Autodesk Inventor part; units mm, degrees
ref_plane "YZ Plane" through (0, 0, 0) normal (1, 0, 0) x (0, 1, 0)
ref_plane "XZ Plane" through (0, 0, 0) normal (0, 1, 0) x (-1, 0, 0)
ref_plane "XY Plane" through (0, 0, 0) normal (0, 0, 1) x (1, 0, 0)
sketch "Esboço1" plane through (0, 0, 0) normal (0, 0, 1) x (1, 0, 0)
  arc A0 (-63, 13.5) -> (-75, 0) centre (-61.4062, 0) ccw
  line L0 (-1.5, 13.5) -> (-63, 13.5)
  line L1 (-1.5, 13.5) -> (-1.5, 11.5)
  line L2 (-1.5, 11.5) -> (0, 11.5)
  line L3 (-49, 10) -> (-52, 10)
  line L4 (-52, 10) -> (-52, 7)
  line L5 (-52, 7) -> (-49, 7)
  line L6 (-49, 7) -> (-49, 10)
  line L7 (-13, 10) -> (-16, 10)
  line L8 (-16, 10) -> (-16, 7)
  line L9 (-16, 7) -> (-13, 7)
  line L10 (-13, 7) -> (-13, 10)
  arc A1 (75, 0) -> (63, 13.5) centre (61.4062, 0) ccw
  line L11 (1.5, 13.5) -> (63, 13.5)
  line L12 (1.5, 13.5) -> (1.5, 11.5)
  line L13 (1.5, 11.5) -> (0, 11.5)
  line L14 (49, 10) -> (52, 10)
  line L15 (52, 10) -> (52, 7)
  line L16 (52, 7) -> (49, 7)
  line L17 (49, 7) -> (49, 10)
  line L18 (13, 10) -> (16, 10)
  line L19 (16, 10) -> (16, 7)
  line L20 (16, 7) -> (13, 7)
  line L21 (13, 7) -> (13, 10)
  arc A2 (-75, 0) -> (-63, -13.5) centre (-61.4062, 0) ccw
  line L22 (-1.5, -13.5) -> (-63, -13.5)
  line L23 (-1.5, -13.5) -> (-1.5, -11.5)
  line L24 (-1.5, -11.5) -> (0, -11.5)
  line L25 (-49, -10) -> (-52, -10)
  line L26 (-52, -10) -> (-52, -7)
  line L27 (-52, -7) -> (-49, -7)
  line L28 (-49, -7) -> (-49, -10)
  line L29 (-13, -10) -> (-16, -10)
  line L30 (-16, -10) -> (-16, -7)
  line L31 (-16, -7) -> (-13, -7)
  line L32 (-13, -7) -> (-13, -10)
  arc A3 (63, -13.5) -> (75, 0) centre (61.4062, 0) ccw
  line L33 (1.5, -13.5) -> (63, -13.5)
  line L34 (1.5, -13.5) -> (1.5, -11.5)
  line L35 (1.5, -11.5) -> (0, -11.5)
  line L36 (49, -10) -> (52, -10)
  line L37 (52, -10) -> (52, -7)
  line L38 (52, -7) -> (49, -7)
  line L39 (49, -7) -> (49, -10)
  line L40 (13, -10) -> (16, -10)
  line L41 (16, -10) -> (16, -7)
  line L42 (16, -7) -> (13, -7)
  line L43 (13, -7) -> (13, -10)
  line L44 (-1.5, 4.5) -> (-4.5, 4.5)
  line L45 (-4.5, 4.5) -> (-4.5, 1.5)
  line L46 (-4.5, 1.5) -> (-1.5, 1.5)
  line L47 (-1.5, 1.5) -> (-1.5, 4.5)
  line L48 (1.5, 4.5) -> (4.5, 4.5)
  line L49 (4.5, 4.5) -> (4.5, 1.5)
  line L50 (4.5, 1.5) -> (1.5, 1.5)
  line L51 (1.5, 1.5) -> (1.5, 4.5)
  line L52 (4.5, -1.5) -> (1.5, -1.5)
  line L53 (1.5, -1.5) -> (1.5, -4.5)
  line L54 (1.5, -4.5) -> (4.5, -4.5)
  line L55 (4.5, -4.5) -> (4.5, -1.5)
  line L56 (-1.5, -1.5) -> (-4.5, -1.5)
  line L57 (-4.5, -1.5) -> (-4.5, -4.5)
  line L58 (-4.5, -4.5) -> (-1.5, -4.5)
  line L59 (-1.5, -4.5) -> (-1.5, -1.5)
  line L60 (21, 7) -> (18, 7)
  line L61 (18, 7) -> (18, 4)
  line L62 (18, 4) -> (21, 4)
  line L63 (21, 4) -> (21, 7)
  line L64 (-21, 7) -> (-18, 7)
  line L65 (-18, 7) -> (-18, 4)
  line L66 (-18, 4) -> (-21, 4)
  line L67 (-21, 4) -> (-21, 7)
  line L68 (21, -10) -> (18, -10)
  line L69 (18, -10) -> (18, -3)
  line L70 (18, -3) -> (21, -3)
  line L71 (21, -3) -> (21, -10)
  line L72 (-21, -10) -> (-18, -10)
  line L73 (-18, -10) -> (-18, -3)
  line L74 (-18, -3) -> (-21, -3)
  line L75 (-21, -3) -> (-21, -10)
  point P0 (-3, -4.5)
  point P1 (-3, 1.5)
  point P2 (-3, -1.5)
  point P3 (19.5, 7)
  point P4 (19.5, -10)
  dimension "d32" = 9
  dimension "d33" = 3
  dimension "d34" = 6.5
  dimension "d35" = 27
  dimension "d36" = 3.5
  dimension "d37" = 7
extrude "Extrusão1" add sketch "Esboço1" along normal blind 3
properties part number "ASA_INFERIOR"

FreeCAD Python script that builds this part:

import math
import FreeCAD as App
import Part
import Sketcher

V = App.Vector
Q = App.Units.Quantity

doc = App.newDocument("Part")
params = doc.addObject("Spreadsheet::Sheet", "Params")
for row, (alias, value) in enumerate([
    ("sketch1_width", "3 mm"),
    ("sketch1_height", "7 mm"),
    ("sketch1_height2", "2 mm"),
    ("sketch1_width2", "61.5 mm"),
    ("pad1_length", "3 mm"),
], start=1):
    params.set(f"A{row}", alias)
    params.set(f"B{row}", "=" + value)
    params.setAlias(f"B{row}", alias)

body = doc.addObject("PartDesign::Body", "Body")

# Sketch on XY plane
sketch1 = body.newObject("Sketcher::SketchObject", "Sketch")
sketch1.AttachmentSupport = (doc.getObject("XY_Plane"), [""])
sketch1.MapMode = "FlatFace"
sketch1.addGeometry([
    Part.LineSegment(V(-1.5, 13.5, 0), V(-63, 13.5, 0)),  # 0
    Part.ArcOfCircle(Part.Circle(V(-61.4, 0, 0), V(0, 0, 1), 13.6), math.radians(97), math.radians(180)),  # 1
    Part.ArcOfCircle(Part.Circle(V(-61.4, 0, 0), V(0, 0, 1), 13.6), math.radians(180), math.radians(263)),  # 2
    Part.LineSegment(V(-63, -13.5, 0), V(-1.5, -13.5, 0)),  # 3
    Part.LineSegment(V(-1.5, -13.5, 0), V(-1.5, -11.5, 0)),  # 4
    Part.LineSegment(V(-1.5, -11.5, 0), V(1.5, -11.5, 0)),  # 5
    Part.LineSegment(V(1.5, -11.5, 0), V(1.5, -13.5, 0)),  # 6
    Part.LineSegment(V(1.5, -13.5, 0), V(63, -13.5, 0)),  # 7
    Part.ArcOfCircle(Part.Circle(V(61.4, 0, 0), V(0, 0, 1), 13.6), math.radians(-83), math.radians(0)),  # 8
    Part.ArcOfCircle(Part.Circle(V(61.4, 0, 0), V(0, 0, 1), 13.6), math.radians(0), math.radians(83)),  # 9
    Part.LineSegment(V(63, 13.5, 0), V(1.5, 13.5, 0)),  # 10
    Part.LineSegment(V(1.5, 13.5, 0), V(1.5, 11.5, 0)),  # 11
    Part.LineSegment(V(1.5, 11.5, 0), V(-1.5, 11.5, 0)),  # 12
    Part.LineSegment(V(-1.5, 11.5, 0), V(-1.5, 13.5, 0)),  # 13
    Part.LineSegment(V(-49, -7, 0), V(-49, -10, 0)),  # 14
    Part.LineSegment(V(-49, -10, 0), V(-52, -10, 0)),  # 15
    Part.LineSegment(V(-52, -10, 0), V(-52, -7, 0)),  # 16
    Part.LineSegment(V(-52, -7, 0), V(-49, -7, 0)),  # 17
    Part.LineSegment(V(-13, -7, 0), V(-13, -10, 0)),  # 18
    Part.LineSegment(V(-13, -10, 0), V(-16, -10, 0)),  # 19
    Part.LineSegment(V(-16, -10, 0), V(-16, -7, 0)),  # 20
    Part.LineSegment(V(-16, -7, 0), V(-13, -7, 0)),  # 21
    Part.LineSegment(V(-18, -10, 0), V(-21, -10, 0)),  # 22
    Part.LineSegment(V(-21, -10, 0), V(-21, -3, 0)),  # 23
    Part.LineSegment(V(-21, -3, 0), V(-18, -3, 0)),  # 24
    Part.LineSegment(V(-18, -3, 0), V(-18, -10, 0)),  # 25
    Part.LineSegment(V(-4.5, -1.5, 0), V(-1.5, -1.5, 0)),  # 26
    Part.LineSegment(V(-1.5, -1.5, 0), V(-1.5, -4.5, 0)),  # 27
    Part.LineSegment(V(-1.5, -4.5, 0), V(-4.5, -4.5, 0)),  # 28
    Part.LineSegment(V(-4.5, -4.5, 0), V(-4.5, -1.5, 0)),  # 29
    Part.LineSegment(V(16, -10, 0), V(13, -10, 0)),  # 30
    Part.LineSegment(V(13, -10, 0), V(13, -7, 0)),  # 31
    Part.LineSegment(V(13, -7, 0), V(16, -7, 0)),  # 32
    Part.LineSegment(V(16, -7, 0), V(16, -10, 0)),  # 33
    Part.LineSegment(V(52, -10, 0), V(49, -10, 0)),  # 34
    Part.LineSegment(V(49, -10, 0), V(49, -7, 0)),  # 35
    Part.LineSegment(V(49, -7, 0), V(52, -7, 0)),  # 36
    Part.LineSegment(V(52, -7, 0), V(52, -10, 0)),  # 37
    Part.LineSegment(V(21, -3, 0), V(21, -10, 0)),  # 38
    Part.LineSegment(V(21, -10, 0), V(18, -10, 0)),  # 39
    Part.LineSegment(V(18, -10, 0), V(18, -3, 0)),  # 40
    Part.LineSegment(V(18, -3, 0), V(21, -3, 0)),  # 41
    Part.LineSegment(V(1.5, -1.5, 0), V(4.5, -1.5, 0)),  # 42
    Part.LineSegment(V(4.5, -1.5, 0), V(4.5, -4.5, 0)),  # 43
    Part.LineSegment(V(4.5, -4.5, 0), V(1.5, -4.5, 0)),  # 44
    Part.LineSegment(V(1.5, -4.5, 0), V(1.5, -1.5, 0)),  # 45
    Part.LineSegment(V(-4.5, 4.5, 0), V(-1.5, 4.5, 0)),  # 46
    Part.LineSegment(V(-1.5, 4.5, 0), V(-1.5, 1.5, 0)),  # 47
    Part.LineSegment(V(-1.5, 1.5, 0), V(-4.5, 1.5, 0)),  # 48
    Part.LineSegment(V(-4.5, 1.5, 0), V(-4.5, 4.5, 0)),  # 49
    Part.LineSegment(V(-21, 4, 0), V(-21, 7, 0)),  # 50
    Part.LineSegment(V(-21, 7, 0), V(-18, 7, 0)),  # 51
    Part.LineSegment(V(-18, 7, 0), V(-18, 4, 0)),  # 52
    Part.LineSegment(V(-18, 4, 0), V(-21, 4, 0)),  # 53
    Part.LineSegment(V(-52, 10, 0), V(-49, 10, 0)),  # 54
    Part.LineSegment(V(-49, 10, 0), V(-49, 7, 0)),  # 55
    Part.LineSegment(V(-49, 7, 0), V(-52, 7, 0)),  # 56
    Part.LineSegment(V(-52, 7, 0), V(-52, 10, 0)),  # 57
    Part.LineSegment(V(-16, 10, 0), V(-13, 10, 0)),  # 58
    Part.LineSegment(V(-13, 10, 0), V(-13, 7, 0)),  # 59
    Part.LineSegment(V(-13, 7, 0), V(-16, 7, 0)),  # 60
    Part.LineSegment(V(-16, 7, 0), V(-16, 10, 0)),  # 61
    Part.LineSegment(V(1.5, 1.5, 0), V(1.5, 4.5, 0)),  # 62
    Part.LineSegment(V(1.5, 4.5, 0), V(4.5, 4.5, 0)),  # 63
    Part.LineSegment(V(4.5, 4.5, 0), V(4.5, 1.5, 0)),  # 64
    Part.LineSegment(V(4.5, 1.5, 0), V(1.5, 1.5, 0)),  # 65
    Part.LineSegment(V(18, 7, 0), V(21, 7, 0)),  # 66
    Part.LineSegment(V(21, 7, 0), V(21, 4, 0)),  # 67
    Part.LineSegment(V(21, 4, 0), V(18, 4, 0)),  # 68
    Part.LineSegment(V(18, 4, 0), V(18, 7, 0)),  # 69
    Part.LineSegment(V(13, 7, 0), V(13, 10, 0)),  # 70
    Part.LineSegment(V(13, 10, 0), V(16, 10, 0)),  # 71
    Part.LineSegment(V(16, 10, 0), V(16, 7, 0)),  # 72
    Part.LineSegment(V(16, 7, 0), V(13, 7, 0)),  # 73
    Part.LineSegment(V(49, 7, 0), V(49, 10, 0)),  # 74
    Part.LineSegment(V(49, 10, 0), V(52, 10, 0)),  # 75
    Part.LineSegment(V(52, 10, 0), V(52, 7, 0)),  # 76
    Part.LineSegment(V(52, 7, 0), V(49, 7, 0)),  # 77
], False)
sketch1.addConstraint([
    Sketcher.Constraint("Coincident", 0, 2, 1, 1),
    Sketcher.Constraint("Tangent", 1, 2, 2, 1),
    Sketcher.Constraint("Coincident", 2, 2, 3, 1),
    Sketcher.Constraint("Coincident", 3, 2, 4, 1),
    Sketcher.Constraint("Coincident", 4, 2, 5, 1),
    Sketcher.Constraint("Coincident", 5, 2, 6, 1),
    Sketcher.Constraint("Coincident", 6, 2, 7, 1),
    Sketcher.Constraint("Coincident", 7, 2, 8, 1),
    Sketcher.Constraint("Tangent", 8, 2, 9, 1),
    Sketcher.Constraint("Coincident", 9, 2, 10, 1),
    Sketcher.Constraint("Coincident", 10, 2, 11, 1),
    Sketcher.Constraint("Coincident", 11, 2, 12, 1),
    Sketcher.Constraint("Coincident", 12, 2, 13, 1),
    Sketcher.Constraint("Coincident", 13, 2, 0, 1),
    Sketcher.Constraint("Coincident", 14, 2, 15, 1),
    Sketcher.Constraint("Coincident", 15, 2, 16, 1),
    Sketcher.Constraint("Coincident", 16, 2, 17, 1),
    Sketcher.Constraint("Coincident", 17, 2, 14, 1),
    Sketcher.Constraint("Coincident", 18, 2, 19, 1),
    Sketcher.Constraint("Coincident", 19, 2, 20, 1),
    Sketcher.Constraint("Coincident", 20, 2, 21, 1),
    Sketcher.Constraint("Coincident", 21, 2, 18, 1),
    Sketcher.Constraint("Coincident", 22, 2, 23, 1),
    Sketcher.Constraint("Coincident", 23, 2, 24, 1),
    Sketcher.Constraint("Coincident", 24, 2, 25, 1),
    Sketcher.Constraint("Coincident", 25, 2, 22, 1),
    Sketcher.Constraint("Coincident", 26, 2, 27, 1),
    Sketcher.Constraint("Coincident", 27, 2, 28, 1),
    Sketcher.Constraint("Coincident", 28, 2, 29, 1),
    Sketcher.Constraint("Coincident", 29, 2, 26, 1),
    Sketcher.Constraint("Coincident", 30, 2, 31, 1),
    Sketcher.Constraint("Coincident", 31, 2, 32, 1),
    Sketcher.Constraint("Coincident", 32, 2, 33, 1),
    Sketcher.Constraint("Coincident", 33, 2, 30, 1),
    Sketcher.Constraint("Coincident", 34, 2, 35, 1),
    Sketcher.Constraint("Coincident", 35, 2, 36, 1),
    Sketcher.Constraint("Coincident", 36, 2, 37, 1),
    Sketcher.Constraint("Coincident", 37, 2, 34, 1),
    Sketcher.Constraint("Coincident", 38, 2, 39, 1),
    Sketcher.Constraint("Coincident", 39, 2, 40, 1),
    Sketcher.Constraint("Coincident", 40, 2, 41, 1),
    Sketcher.Constraint("Coincident", 41, 2, 38, 1),
    Sketcher.Constraint("Coincident", 42, 2, 43, 1),
    Sketcher.Constraint("Coincident", 43, 2, 44, 1),
    Sketcher.Constraint("Coincident", 44, 2, 45, 1),
    Sketcher.Constraint("Coincident", 45, 2, 42, 1),
    Sketcher.Constraint("Coincident", 46, 2, 47, 1),
    Sketcher.Constraint("Coincident", 47, 2, 48, 1),
    Sketcher.Constraint("Coincident", 48, 2, 49, 1),
    Sketcher.Constraint("Coincident", 49, 2, 46, 1),
    Sketcher.Constraint("Coincident", 50, 2, 51, 1),
    Sketcher.Constraint("Coincident", 51, 2, 52, 1),
    Sketcher.Constraint("Coincident", 52, 2, 53, 1),
    Sketcher.Constraint("Coincident", 53, 2, 50, 1),
    Sketcher.Constraint("Coincident", 54, 2, 55, 1),
    Sketcher.Constraint("Coincident", 55, 2, 56, 1),
    Sketcher.Constraint("Coincident", 56, 2, 57, 1),
    Sketcher.Constraint("Coincident", 57, 2, 54, 1),
    Sketcher.Constraint("Coincident", 58, 2, 59, 1),
    Sketcher.Constraint("Coincident", 59, 2, 60, 1),
    Sketcher.Constraint("Coincident", 60, 2, 61, 1),
    Sketcher.Constraint("Coincident", 61, 2, 58, 1),
    Sketcher.Constraint("Coincident", 62, 2, 63, 1),
    Sketcher.Constraint("Coincident", 63, 2, 64, 1),
    Sketcher.Constraint("Coincident", 64, 2, 65, 1),
    Sketcher.Constraint("Coincident", 65, 2, 62, 1),
    Sketcher.Constraint("Coincident", 66, 2, 67, 1),
    Sketcher.Constraint("Coincident", 67, 2, 68, 1),
    Sketcher.Constraint("Coincident", 68, 2, 69, 1),
    Sketcher.Constraint("Coincident", 69, 2, 66, 1),
    Sketcher.Constraint("Coincident", 70, 2, 71, 1),
    Sketcher.Constraint("Coincident", 71, 2, 72, 1),
    Sketcher.Constraint("Coincident", 72, 2, 73, 1),
    Sketcher.Constraint("Coincident", 73, 2, 70, 1),
    Sketcher.Constraint("Coincident", 74, 2, 75, 1),
    Sketcher.Constraint("Coincident", 75, 2, 76, 1),
    Sketcher.Constraint("Coincident", 76, 2, 77, 1),
    Sketcher.Constraint("Coincident", 77, 2, 74, 1),
    Sketcher.Constraint("Horizontal", 0),
    Sketcher.Constraint("Horizontal", 3),
    Sketcher.Constraint("Vertical", 4),
    Sketcher.Constraint("Horizontal", 5),
    Sketcher.Constraint("Vertical", 6),
    Sketcher.Constraint("Horizontal", 7),
    Sketcher.Constraint("Horizontal", 10),
    Sketcher.Constraint("Vertical", 11),
    Sketcher.Constraint("Horizontal", 12),
    Sketcher.Constraint("Vertical", 13),
    Sketcher.Constraint("Vertical", 14),
    Sketcher.Constraint("Horizontal", 15),
    Sketcher.Constraint("Vertical", 16),
    Sketcher.Constraint("Horizontal", 17),
    Sketcher.Constraint("Vertical", 18),
    Sketcher.Constraint("Horizontal", 19),
    Sketcher.Constraint("Vertical", 20),
    Sketcher.Constraint("Horizontal", 21),
    Sketcher.Constraint("Horizontal", 22),
    Sketcher.Constraint("Vertical", 23),
    Sketcher.Constraint("Horizontal", 24),
    Sketcher.Constraint("Vertical", 25),
    Sketcher.Constraint("Horizontal", 26),
    Sketcher.Constraint("Vertical", 27),
    Sketcher.Constraint("Horizontal", 28),
    Sketcher.Constraint("Vertical", 29),
    Sketcher.Constraint("Horizontal", 30),
    Sketcher.Constraint("Vertical", 31),
    Sketcher.Constraint("Horizontal", 32),
    Sketcher.Constraint("Vertical", 33),
    Sketcher.Constraint("Horizontal", 34),
    Sketcher.Constraint("Vertical", 35),
    Sketcher.Constraint("Horizontal", 36),
    Sketcher.Constraint("Vertical", 37),
    Sketcher.Constraint("Vertical", 38),
    Sketcher.Constraint("Horizontal", 39),
    Sketcher.Constraint("Vertical", 40),
    Sketcher.Constraint("Horizontal", 41),
    Sketcher.Constraint("Horizontal", 42),
    Sketcher.Constraint("Vertical", 43),
    Sketcher.Constraint("Horizontal", 44),
    Sketcher.Constraint("Vertical", 45),
    Sketcher.Constraint("Horizontal", 46),
    Sketcher.Constraint("Vertical", 47),
    Sketcher.Constraint("Horizontal", 48),
    Sketcher.Constraint("Vertical", 49),
    Sketcher.Constraint("Vertical", 50),
    Sketcher.Constraint("Horizontal", 51),
    Sketcher.Constraint("Vertical", 52),
    Sketcher.Constraint("Horizontal", 53),
    Sketcher.Constraint("Horizontal", 54),
    Sketcher.Constraint("Vertical", 55),
    Sketcher.Constraint("Horizontal", 56),
    Sketcher.Constraint("Vertical", 57),
    Sketcher.Constraint("Horizontal", 58),
    Sketcher.Constraint("Vertical", 59),
    Sketcher.Constraint("Horizontal", 60),
    Sketcher.Constraint("Vertical", 61),
    Sketcher.Constraint("Vertical", 62),
    Sketcher.Constraint("Horizontal", 63),
    Sketcher.Constraint("Vertical", 64),
    Sketcher.Constraint("Horizontal", 65),
    Sketcher.Constraint("Horizontal", 66),
    Sketcher.Constraint("Vertical", 67),
    Sketcher.Constraint("Horizontal", 68),
    Sketcher.Constraint("Vertical", 69),
    Sketcher.Constraint("Vertical", 70),
    Sketcher.Constraint("Horizontal", 71),
    Sketcher.Constraint("Vertical", 72),
    Sketcher.Constraint("Horizontal", 73),
    Sketcher.Constraint("Vertical", 74),
    Sketcher.Constraint("Horizontal", 75),
    Sketcher.Constraint("Vertical", 76),
    Sketcher.Constraint("Horizontal", 77),
    Sketcher.Constraint("Equal", 1, 2),
    Sketcher.Constraint("Equal", 2, 8),
    Sketcher.Constraint("Equal", 8, 9),
    Sketcher.Constraint("Symmetric", 1, 3, 8, 3, -1, 1),
    Sketcher.Constraint("Symmetric", 3, 2, 10, 2, -1, 1),
    Sketcher.Constraint("Symmetric", 5, 2, 12, 2, -1, 1),
    Sketcher.Constraint("Symmetric", 44, 2, 46, 2, -1, 1),
    Sketcher.Constraint("Symmetric", 42, 2, 48, 2, -1, 1),
    Sketcher.Constraint("Symmetric", 34, 2, 54, 2, -1, 1),
    Sketcher.Constraint("Symmetric", 36, 2, 56, 2, -1, 1),
    Sketcher.Constraint("Symmetric", 30, 2, 58, 2, -1, 1),
    Sketcher.Constraint("Symmetric", 32, 2, 60, 2, -1, 1),
    Sketcher.Constraint("Symmetric", 27, 2, 62, 2, -1, 1),
    Sketcher.Constraint("Symmetric", 29, 2, 64, 2, -1, 1),
    Sketcher.Constraint("Symmetric", 18, 2, 70, 2, -1, 1),
    Sketcher.Constraint("Symmetric", 20, 2, 72, 2, -1, 1),
    Sketcher.Constraint("Symmetric", 14, 2, 74, 2, -1, 1),
    Sketcher.Constraint("Symmetric", 16, 2, 76, 2, -1, 1),
    Sketcher.Constraint("Symmetric", 3, 2, 6, 2, -2),
    Sketcher.Constraint("Symmetric", 0, 2, 9, 2, -2),
    Sketcher.Constraint("Symmetric", 18, 2, 30, 2, -2),
    Sketcher.Constraint("Symmetric", 20, 2, 32, 2, -2),
    Sketcher.Constraint("Symmetric", 14, 2, 34, 2, -2),
    Sketcher.Constraint("Symmetric", 16, 2, 36, 2, -2),
    Sketcher.Constraint("Symmetric", 22, 2, 38, 2, -2),
    Sketcher.Constraint("Symmetric", 24, 2, 40, 2, -2),
    Sketcher.Constraint("Symmetric", 29, 2, 42, 2, -2),
    Sketcher.Constraint("Symmetric", 27, 2, 44, 2, -2),
    Sketcher.Constraint("Symmetric", 50, 2, 66, 2, -2),
    Sketcher.Constraint("Symmetric", 52, 2, 68, 2, -2),
    Sketcher.Constraint("PointOnObject", 1, 2, -1),
    Sketcher.Constraint("PointOnObject", 8, 2, -1),
    Sketcher.Constraint("Horizontal", 15, 2, 18, 2),
    Sketcher.Constraint("Horizontal", 17, 2, 20, 2),
    Sketcher.Constraint("Horizontal", 19, 2, 22, 2),
    Sketcher.Constraint("Horizontal", 51, 2, 55, 2),
    Sketcher.Constraint("Vertical", 13, 2, 26, 2),
    Sketcher.Constraint("Vertical", 23, 2, 50, 2),
    Sketcher.Constraint("Vertical", 25, 2, 51, 2),
    Sketcher.Constraint("Equal", 12, 15),
    Sketcher.Constraint("Equal", 17, 19),
    Sketcher.Constraint("Equal", 21, 22),
    Sketcher.Constraint("Equal", 24, 26),
    Sketcher.Constraint("Equal", 77, 14),
    Sketcher.Constraint("Equal", 20, 27),
    Sketcher.Constraint("Equal", 49, 50),
    Sketcher.Constraint("DistanceX", 5, 1, 5, 2, Q("3 mm")),
    Sketcher.Constraint("DistanceY", 23, 1, 23, 2, Q("7 mm")),
    Sketcher.Constraint("DistanceY", 16, 2, -1, 1, Q("7 mm")),
    Sketcher.Constraint("DistanceY", 4, 1, 4, 2, Q("2 mm")),
    Sketcher.Constraint("DistanceX", 0, 2, 0, 1, Q("61.5 mm")),
    Sketcher.Constraint("DistanceX", 1, 2, -1, 1, Q("75 mm")),
    Sketcher.Constraint("DistanceX", 14, 2, -1, 1, Q("49 mm")),
    Sketcher.Constraint("DistanceX", 18, 2, -1, 1, Q("13 mm")),
    Sketcher.Constraint("DistanceX", 22, 2, -1, 1, Q("21 mm")),
    Sketcher.Constraint("DistanceY", -1, 1, 0, 2, Q("13.5 mm")),
    Sketcher.Constraint("DistanceY", 26, 2, -1, 1, Q("1.5 mm")),
])
sketch1.setExpression("Constraints[198]", "Params.sketch1_width")
sketch1.setExpression("Constraints[199]", "Params.sketch1_height")
sketch1.setExpression("Constraints[201]", "Params.sketch1_height2")
sketch1.setExpression("Constraints[202]", "Params.sketch1_width2")
pad1 = body.newObject("PartDesign::Pad", "Pad")
pad1.Profile = sketch1
pad1.setExpression("Length", "Params.pad1_length")

doc.recompute()
